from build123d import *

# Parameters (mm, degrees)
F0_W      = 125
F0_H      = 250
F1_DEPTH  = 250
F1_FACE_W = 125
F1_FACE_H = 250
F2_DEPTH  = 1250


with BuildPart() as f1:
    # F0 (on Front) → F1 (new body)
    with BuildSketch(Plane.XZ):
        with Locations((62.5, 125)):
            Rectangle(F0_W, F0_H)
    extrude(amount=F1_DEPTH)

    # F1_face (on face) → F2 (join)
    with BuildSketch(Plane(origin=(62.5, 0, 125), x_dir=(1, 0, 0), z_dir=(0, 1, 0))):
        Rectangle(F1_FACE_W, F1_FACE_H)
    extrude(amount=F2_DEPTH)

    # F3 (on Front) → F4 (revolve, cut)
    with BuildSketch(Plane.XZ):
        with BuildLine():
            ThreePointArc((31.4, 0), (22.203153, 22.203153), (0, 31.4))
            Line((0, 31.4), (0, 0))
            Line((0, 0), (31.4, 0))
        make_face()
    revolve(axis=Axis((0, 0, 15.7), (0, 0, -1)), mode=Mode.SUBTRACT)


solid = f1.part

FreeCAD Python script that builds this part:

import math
import FreeCAD as App
import Part
import Sketcher
from FreeCAD import Vector


def add_polygon(sketch, points):
    """Adds a closed chain of lines whose ends are joined by coincident constraints."""
    first, n = sketch.GeometryCount, len(points)
    for a, b in zip(points, points[1:] + points[:1]):
        sketch.addGeometry(Part.LineSegment(App.Vector(*a, 0), App.Vector(*b, 0)), False)
    for i in range(n):
        sketch.addConstraint(Sketcher.Constraint("Coincident", first + i, 2, first + (i + 1) % n, 1))

doc = App.newDocument("Part")
body = doc.addObject("PartDesign::Body", "Body")

# Sketch on XZ plane
sketch1 = doc.addObject("Sketcher::SketchObject", "Sketch")
body.addObject(sketch1)
sketch1.AttachmentSupport = (doc.XZ_Plane, [""])
sketch1.MapMode = "FlatFace"
add_polygon(sketch1, [(0, 250), (0, 0), (125, 0), (125, 250)])  # lines 0-3
sketch1.addConstraint(Sketcher.Constraint("Vertical", 0))
sketch1.addConstraint(Sketcher.Constraint("Horizontal", 1))
sketch1.addConstraint(Sketcher.Constraint("Vertical", 2))
sketch1.addConstraint(Sketcher.Constraint("Horizontal", 3))
sketch1.addConstraint(Sketcher.Constraint("Coincident", 0, 2, -1, 1))
sketch1.addConstraint(Sketcher.Constraint("DistanceX", 1, 1, 1, 2, 125.0))
sketch1.addConstraint(Sketcher.Constraint("DistanceY", 0, 2, 0, 1, 250.0))
pad1 = doc.addObject("PartDesign::Pad", "Pad")
body.addObject(pad1)
pad1.Profile = sketch1
pad1.Length = 250

# Sketch on XZ plane
sketch2 = doc.addObject("Sketcher::SketchObject", "Sketch001")
body.addObject(sketch2)
sketch2.AttachmentSupport = (doc.XZ_Plane, [""])
sketch2.MapMode = "FlatFace"
add_polygon(sketch2, [(0, 0), (0, 250), (125, 250), (125, 0)])  # lines 0-3
sketch2.addConstraint(Sketcher.Constraint("Vertical", 0))
sketch2.addConstraint(Sketcher.Constraint("Horizontal", 1))
sketch2.addConstraint(Sketcher.Constraint("Vertical", 2))
sketch2.addConstraint(Sketcher.Constraint("Horizontal", 3))
sketch2.addConstraint(Sketcher.Constraint("Coincident", 3, 2, -1, 1))
sketch2.addConstraint(Sketcher.Constraint("DistanceX", 1, 1, 1, 2, 125.0))
sketch2.addConstraint(Sketcher.Constraint("DistanceY", 0, 1, 0, 2, 250.0))
pad2 = doc.addObject("PartDesign::Pad", "Pad001")
body.addObject(pad2)
pad2.Profile = sketch2
pad2.Length = 1250
pad2.Reversed = True

# Sketch on XZ plane
sketch3 = doc.addObject("Sketcher::SketchObject", "Sketch002")
body.addObject(sketch3)
sketch3.AttachmentSupport = (doc.XZ_Plane, [""])
sketch3.MapMode = "FlatFace"
sketch3.addGeometry(Part.ArcOfCircle(Part.Circle(Vector(0, 0, 0), Vector(0, 0, 1), 31), math.radians(0), math.radians(90)), False)
sketch3.addGeometry(Part.LineSegment(Vector(0, 31, 0), Vector(0, 0, 0)), False)
sketch3.addGeometry(Part.LineSegment(Vector(0, 0, 0), Vector(31, 0, 0)), False)
sketch3.addConstraint(Sketcher.Constraint("Coincident", 0, 2, 1, 1))
sketch3.addConstraint(Sketcher.Constraint("Coincident", 1, 2, 2, 1))
sketch3.addConstraint(Sketcher.Constraint("Coincident", 2, 2, 0, 1))
sketch3.addConstraint(Sketcher.Constraint("Vertical", 1))
sketch3.addConstraint(Sketcher.Constraint("Horizontal", 2))
sketch3.addConstraint(Sketcher.Constraint("Coincident", 0, 3, -1, 1))
sketch3.addConstraint(Sketcher.Constraint("Coincident", 1, 2, -1, 1))
sketch3.addConstraint(Sketcher.Constraint("Radius", 0, 31.4))
groove = doc.addObject("PartDesign::Groove", "Groove")
body.addObject(groove)
groove.Profile = sketch3
groove.ReferenceAxis = (sketch3, ["V_Axis"])
groove.Angle = 360

doc.recompute()
